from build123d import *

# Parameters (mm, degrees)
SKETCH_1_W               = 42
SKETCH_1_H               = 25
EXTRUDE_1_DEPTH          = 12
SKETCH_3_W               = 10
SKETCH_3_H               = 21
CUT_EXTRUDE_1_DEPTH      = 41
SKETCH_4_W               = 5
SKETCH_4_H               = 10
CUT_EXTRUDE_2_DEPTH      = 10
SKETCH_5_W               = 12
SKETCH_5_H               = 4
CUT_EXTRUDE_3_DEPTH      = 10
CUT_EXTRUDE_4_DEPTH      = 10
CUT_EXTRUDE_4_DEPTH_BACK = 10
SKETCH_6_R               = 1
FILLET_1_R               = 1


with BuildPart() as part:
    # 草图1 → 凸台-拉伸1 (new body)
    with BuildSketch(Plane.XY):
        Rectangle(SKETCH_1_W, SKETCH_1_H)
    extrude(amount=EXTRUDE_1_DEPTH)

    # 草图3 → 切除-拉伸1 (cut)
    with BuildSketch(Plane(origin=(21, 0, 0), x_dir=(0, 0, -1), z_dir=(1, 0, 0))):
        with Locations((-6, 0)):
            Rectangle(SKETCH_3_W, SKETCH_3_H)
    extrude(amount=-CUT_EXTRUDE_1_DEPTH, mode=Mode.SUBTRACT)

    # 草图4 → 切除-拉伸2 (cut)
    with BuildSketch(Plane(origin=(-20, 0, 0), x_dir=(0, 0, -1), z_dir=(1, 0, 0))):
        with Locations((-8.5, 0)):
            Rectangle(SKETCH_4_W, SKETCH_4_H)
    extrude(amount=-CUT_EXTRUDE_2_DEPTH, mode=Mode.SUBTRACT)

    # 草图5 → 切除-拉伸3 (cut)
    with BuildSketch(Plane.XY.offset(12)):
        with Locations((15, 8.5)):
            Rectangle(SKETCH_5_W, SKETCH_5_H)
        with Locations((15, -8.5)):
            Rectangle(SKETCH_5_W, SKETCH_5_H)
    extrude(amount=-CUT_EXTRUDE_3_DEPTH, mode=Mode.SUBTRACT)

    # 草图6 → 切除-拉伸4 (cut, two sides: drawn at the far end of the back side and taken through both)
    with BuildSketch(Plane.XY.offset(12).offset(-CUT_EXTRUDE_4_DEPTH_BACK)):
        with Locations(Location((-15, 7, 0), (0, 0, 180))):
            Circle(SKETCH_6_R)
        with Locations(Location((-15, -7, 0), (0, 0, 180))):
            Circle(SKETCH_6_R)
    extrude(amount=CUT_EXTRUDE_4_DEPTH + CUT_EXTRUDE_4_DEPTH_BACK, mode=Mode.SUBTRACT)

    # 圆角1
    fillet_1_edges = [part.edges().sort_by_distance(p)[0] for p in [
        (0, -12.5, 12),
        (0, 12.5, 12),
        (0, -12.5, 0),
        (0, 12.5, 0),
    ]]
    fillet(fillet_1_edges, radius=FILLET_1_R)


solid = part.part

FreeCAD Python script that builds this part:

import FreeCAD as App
import Part
import Sketcher


def edges_at(feature, points):
    """Names of the edges that pass closest to the given points."""
    edges = feature.Shape.Edges
    near = lambda p: min(range(len(edges)), key=lambda i: edges[i].distToShape(Part.Vertex(*p))[0])
    return sorted({f"Edge{near(p) + 1}" for p in points})

doc = App.newDocument("Part")
body = doc.addObject("PartDesign::Body", "Body")

# Sketch on XY plane
sketch1 = body.newObject("Sketcher::SketchObject", "Sketch")
sketch1.AttachmentSupport = (doc.getObject("XY_Plane"), [""])
sketch1.MapMode = "FlatFace"
sketch1.addGeometry(Part.LineSegment(App.Vector(-21, 12, 0), App.Vector(-21, -12, 0)), False)
sketch1.addGeometry(Part.LineSegment(App.Vector(-21, -12, 0), App.Vector(21, -12, 0)), False)
sketch1.addGeometry(Part.LineSegment(App.Vector(21, -12, 0), App.Vector(21, 12, 0)), False)
sketch1.addGeometry(Part.LineSegment(App.Vector(21, 12, 0), App.Vector(-21, 12, 0)), False)
sketch1.addConstraint(Sketcher.Constraint("Coincident", 0, 2, 1, 1))
sketch1.addConstraint(Sketcher.Constraint("Coincident", 1, 2, 2, 1))
sketch1.addConstraint(Sketcher.Constraint("Coincident", 2, 2, 3, 1))
sketch1.addConstraint(Sketcher.Constraint("Coincident", 3, 2, 0, 1))
sketch1.addConstraint(Sketcher.Constraint("Vertical", 0))
sketch1.addConstraint(Sketcher.Constraint("Horizontal", 1))
sketch1.addConstraint(Sketcher.Constraint("Vertical", 2))
sketch1.addConstraint(Sketcher.Constraint("Horizontal", 3))
sketch1.addConstraint(Sketcher.Constraint("Symmetric", 0, 2, 2, 2, -1, 1))
sketch1.addConstraint(Sketcher.Constraint("DistanceX", 1, 1, 1, 2, 42.0))
sketch1.addConstraint(Sketcher.Constraint("DistanceY", 0, 2, 0, 1, 25.0))
pad1 = body.newObject("PartDesign::Pad", "Pad")
pad1.Profile = sketch1
pad1.Length = 12

# Sketch on YZ plane
sketch2 = body.newObject("Sketcher::SketchObject", "Sketch001")
sketch2.AttachmentSupport = (doc.getObject("YZ_Plane"), [""])
sketch2.MapMode = "FlatFace"
sketch2.AttachmentOffset = App.Placement(App.Vector(0, 0, 21), App.Rotation())
sketch2.addGeometry(Part.LineSegment(App.Vector(10, 11, 0), App.Vector(-10, 11, 0)), False)
sketch2.addGeometry(Part.LineSegment(App.Vector(-10, 11, 0), App.Vector(-10, 1, 0)), False)
sketch2.addGeometry(Part.LineSegment(App.Vector(-10, 1, 0), App.Vector(10, 1, 0)), False)
sketch2.addGeometry(Part.LineSegment(App.Vector(10, 1, 0), App.Vector(10, 11, 0)), False)
sketch2.addConstraint(Sketcher.Constraint("Coincident", 0, 2, 1, 1))
sketch2.addConstraint(Sketcher.Constraint("Coincident", 1, 2, 2, 1))
sketch2.addConstraint(Sketcher.Constraint("Coincident", 2, 2, 3, 1))
sketch2.addConstraint(Sketcher.Constraint("Coincident", 3, 2, 0, 1))
sketch2.addConstraint(Sketcher.Constraint("Horizontal", 0))
sketch2.addConstraint(Sketcher.Constraint("Vertical", 1))
sketch2.addConstraint(Sketcher.Constraint("Horizontal", 2))
sketch2.addConstraint(Sketcher.Constraint("Vertical", 3))
sketch2.addConstraint(Sketcher.Constraint("DistanceX", 0, 2, 0, 1, 21.0))
sketch2.addConstraint(Sketcher.Constraint("DistanceY", 1, 2, 1, 1, 10.0))
sketch2.addConstraint(Sketcher.Constraint("DistanceY", -1, 1, 0, 2, 11.0))
sketch2.addConstraint(Sketcher.Constraint("DistanceX", 0, 2, -1, 1, 10.5))
pocket1 = body.newObject("PartDesign::Pocket", "Pocket")
pocket1.Profile = sketch2
pocket1.Length = 41

# Sketch on YZ plane
sketch3 = body.newObject("Sketcher::SketchObject", "Sketch002")
sketch3.AttachmentSupport = (doc.getObject("YZ_Plane"), [""])
sketch3.MapMode = "FlatFace"
sketch3.AttachmentOffset = App.Placement(App.Vector(0, 0, -20), App.Rotation())
sketch3.addGeometry(Part.LineSegment(App.Vector(5, 11, 0), App.Vector(-5, 11, 0)), False)
sketch3.addGeometry(Part.LineSegment(App.Vector(-5, 11, 0), App.Vector(-5, 6, 0)), False)
sketch3.addGeometry(Part.LineSegment(App.Vector(-5, 6, 0), App.Vector(5, 6, 0)), False)
sketch3.addGeometry(Part.LineSegment(App.Vector(5, 6, 0), App.Vector(5, 11, 0)), False)
sketch3.addConstraint(Sketcher.Constraint("Coincident", 0, 2, 1, 1))
sketch3.addConstraint(Sketcher.Constraint("Coincident", 1, 2, 2, 1))
sketch3.addConstraint(Sketcher.Constraint("Coincident", 2, 2, 3, 1))
sketch3.addConstraint(Sketcher.Constraint("Coincident", 3, 2, 0, 1))
sketch3.addConstraint(Sketcher.Constraint("Horizontal", 0))
sketch3.addConstraint(Sketcher.Constraint("Vertical", 1))
sketch3.addConstraint(Sketcher.Constraint("Horizontal", 2))
sketch3.addConstraint(Sketcher.Constraint("Vertical", 3))
sketch3.addConstraint(Sketcher.Constraint("DistanceX", 0, 2, 0, 1, 10.0))
sketch3.addConstraint(Sketcher.Constraint("DistanceY", 1, 2, 1, 1, 5.0))
sketch3.addConstraint(Sketcher.Constraint("DistanceX", 0, 2, -1, 1, 5.0))
sketch3.addConstraint(Sketcher.Constraint("DistanceY", -1, 1, 0, 2, 11.0))
pocket2 = body.newObject("PartDesign::Pocket", "Pocket001")
pocket2.Profile = sketch3
pocket2.Length = 10

# Sketch on XY plane
sketch4 = body.newObject("Sketcher::SketchObject", "Sketch003")
sketch4.AttachmentSupport = (doc.getObject("XY_Plane"), [""])
sketch4.MapMode = "FlatFace"
sketch4.AttachmentOffset = App.Placement(App.Vector(0, 0, 12), App.Rotation())
sketch4.addGeometry(Part.LineSegment(App.Vector(9, 10.5, 0), App.Vector(9, 6.5, 0)), False)
sketch4.addGeometry(Part.LineSegment(App.Vector(9, 6.5, 0), App.Vector(21, 6.5, 0)), False)
sketch4.addGeometry(Part.LineSegment(App.Vector(21, 6.5, 0), App.Vector(21, 10.5, 0)), False)
sketch4.addGeometry(Part.LineSegment(App.Vector(21, 10.5, 0), App.Vector(9, 10.5, 0)), False)
sketch4.addGeometry(Part.LineSegment(App.Vector(9, -6.5, 0), App.Vector(9, -10.5, 0)), False)
sketch4.addGeometry(Part.LineSegment(App.Vector(9, -10.5, 0), App.Vector(21, -10.5, 0)), False)
sketch4.addGeometry(Part.LineSegment(App.Vector(21, -10.5, 0), App.Vector(21, -6.5, 0)), False)
sketch4.addGeometry(Part.LineSegment(App.Vector(21, -6.5, 0), App.Vector(9, -6.5, 0)), False)
sketch4.addConstraint(Sketcher.Constraint("Coincident", 0, 2, 1, 1))
sketch4.addConstraint(Sketcher.Constraint("Coincident", 1, 2, 2, 1))
sketch4.addConstraint(Sketcher.Constraint("Coincident", 2, 2, 3, 1))
sketch4.addConstraint(Sketcher.Constraint("Coincident", 3, 2, 0, 1))
sketch4.addConstraint(Sketcher.Constraint("Coincident", 4, 2, 5, 1))
sketch4.addConstraint(Sketcher.Constraint("Coincident", 5, 2, 6, 1))
sketch4.addConstraint(Sketcher.Constraint("Coincident", 6, 2, 7, 1))
sketch4.addConstraint(Sketcher.Constraint("Coincident", 7, 2, 4, 1))
sketch4.addConstraint(Sketcher.Constraint("Vertical", 0))
sketch4.addConstraint(Sketcher.Constraint("Horizontal", 1))
sketch4.addConstraint(Sketcher.Constraint("Vertical", 2))
sketch4.addConstraint(Sketcher.Constraint("Horizontal", 3))
sketch4.addConstraint(Sketcher.Constraint("Vertical", 4))
sketch4.addConstraint(Sketcher.Constraint("Horizontal", 5))
sketch4.addConstraint(Sketcher.Constraint("Vertical", 6))
sketch4.addConstraint(Sketcher.Constraint("Horizontal", 7))
sketch4.addConstraint(Sketcher.Constraint("Symmetric", 3, 2, 4, 2, -1))
sketch4.addConstraint(Sketcher.Constraint("Symmetric", 1, 2, 6, 2, -1))
sketch4.addConstraint(Sketcher.Constraint("DistanceX", 1, 1, 1, 2, 12.0))
sketch4.addConstraint(Sketcher.Constraint("DistanceY", 0, 2, 0, 1, 4.0))
sketch4.addConstraint(Sketcher.Constraint("DistanceX", -1, 1, 0, 2, 9.0))
sketch4.addConstraint(Sketcher.Constraint("DistanceY", 4, 2, 0, 2, 17.0))
pocket3 = body.newObject("PartDesign::Pocket", "Pocket002")
pocket3.Profile = sketch4
pocket3.Length = 10

# Sketch on XY plane
sketch5 = body.newObject("Sketcher::SketchObject", "Sketch004")
sketch5.AttachmentSupport = (doc.getObject("XY_Plane"), [""])
sketch5.MapMode = "FlatFace"
sketch5.AttachmentOffset = App.Placement(App.Vector(0, 0, 12), App.Rotation())
sketch5.addGeometry(Part.Circle(App.Vector(-15, 7, 0), App.Vector(0, 0, 1), 1), False)
sketch5.addGeometry(Part.Circle(App.Vector(-15, -7, 0), App.Vector(0, 0, 1), 1), False)
sketch5.addConstraint(Sketcher.Constraint("Equal", 0, 1))
sketch5.addConstraint(Sketcher.Constraint("Symmetric", 0, 3, 1, 3, -1))
sketch5.addConstraint(Sketcher.Constraint("Diameter", 0, 2.0))
sketch5.addConstraint(Sketcher.Constraint("DistanceX", 0, 3, -1, 1, 15.0))
sketch5.addConstraint(Sketcher.Constraint("DistanceY", -1, 1, 0, 3, 7.0))
pocket4 = body.newObject("PartDesign::Pocket", "Pocket003")
pocket4.Profile = sketch5
pocket4.Type = "TwoLengths"
pocket4.Length = 10
pocket4.Length2 = 10
pocket4.Reversed = True
doc.recompute()

fillet = body.newObject("PartDesign::Fillet", "Fillet")
fillet.Base = (pocket4, edges_at(pocket4, [
    (0, -12.5, 12),
    (0, 12.5, 12),
    (0, -12.5, 0),
    (0, 12.5, 0),
]))
fillet.Radius = 1

doc.recompute()
